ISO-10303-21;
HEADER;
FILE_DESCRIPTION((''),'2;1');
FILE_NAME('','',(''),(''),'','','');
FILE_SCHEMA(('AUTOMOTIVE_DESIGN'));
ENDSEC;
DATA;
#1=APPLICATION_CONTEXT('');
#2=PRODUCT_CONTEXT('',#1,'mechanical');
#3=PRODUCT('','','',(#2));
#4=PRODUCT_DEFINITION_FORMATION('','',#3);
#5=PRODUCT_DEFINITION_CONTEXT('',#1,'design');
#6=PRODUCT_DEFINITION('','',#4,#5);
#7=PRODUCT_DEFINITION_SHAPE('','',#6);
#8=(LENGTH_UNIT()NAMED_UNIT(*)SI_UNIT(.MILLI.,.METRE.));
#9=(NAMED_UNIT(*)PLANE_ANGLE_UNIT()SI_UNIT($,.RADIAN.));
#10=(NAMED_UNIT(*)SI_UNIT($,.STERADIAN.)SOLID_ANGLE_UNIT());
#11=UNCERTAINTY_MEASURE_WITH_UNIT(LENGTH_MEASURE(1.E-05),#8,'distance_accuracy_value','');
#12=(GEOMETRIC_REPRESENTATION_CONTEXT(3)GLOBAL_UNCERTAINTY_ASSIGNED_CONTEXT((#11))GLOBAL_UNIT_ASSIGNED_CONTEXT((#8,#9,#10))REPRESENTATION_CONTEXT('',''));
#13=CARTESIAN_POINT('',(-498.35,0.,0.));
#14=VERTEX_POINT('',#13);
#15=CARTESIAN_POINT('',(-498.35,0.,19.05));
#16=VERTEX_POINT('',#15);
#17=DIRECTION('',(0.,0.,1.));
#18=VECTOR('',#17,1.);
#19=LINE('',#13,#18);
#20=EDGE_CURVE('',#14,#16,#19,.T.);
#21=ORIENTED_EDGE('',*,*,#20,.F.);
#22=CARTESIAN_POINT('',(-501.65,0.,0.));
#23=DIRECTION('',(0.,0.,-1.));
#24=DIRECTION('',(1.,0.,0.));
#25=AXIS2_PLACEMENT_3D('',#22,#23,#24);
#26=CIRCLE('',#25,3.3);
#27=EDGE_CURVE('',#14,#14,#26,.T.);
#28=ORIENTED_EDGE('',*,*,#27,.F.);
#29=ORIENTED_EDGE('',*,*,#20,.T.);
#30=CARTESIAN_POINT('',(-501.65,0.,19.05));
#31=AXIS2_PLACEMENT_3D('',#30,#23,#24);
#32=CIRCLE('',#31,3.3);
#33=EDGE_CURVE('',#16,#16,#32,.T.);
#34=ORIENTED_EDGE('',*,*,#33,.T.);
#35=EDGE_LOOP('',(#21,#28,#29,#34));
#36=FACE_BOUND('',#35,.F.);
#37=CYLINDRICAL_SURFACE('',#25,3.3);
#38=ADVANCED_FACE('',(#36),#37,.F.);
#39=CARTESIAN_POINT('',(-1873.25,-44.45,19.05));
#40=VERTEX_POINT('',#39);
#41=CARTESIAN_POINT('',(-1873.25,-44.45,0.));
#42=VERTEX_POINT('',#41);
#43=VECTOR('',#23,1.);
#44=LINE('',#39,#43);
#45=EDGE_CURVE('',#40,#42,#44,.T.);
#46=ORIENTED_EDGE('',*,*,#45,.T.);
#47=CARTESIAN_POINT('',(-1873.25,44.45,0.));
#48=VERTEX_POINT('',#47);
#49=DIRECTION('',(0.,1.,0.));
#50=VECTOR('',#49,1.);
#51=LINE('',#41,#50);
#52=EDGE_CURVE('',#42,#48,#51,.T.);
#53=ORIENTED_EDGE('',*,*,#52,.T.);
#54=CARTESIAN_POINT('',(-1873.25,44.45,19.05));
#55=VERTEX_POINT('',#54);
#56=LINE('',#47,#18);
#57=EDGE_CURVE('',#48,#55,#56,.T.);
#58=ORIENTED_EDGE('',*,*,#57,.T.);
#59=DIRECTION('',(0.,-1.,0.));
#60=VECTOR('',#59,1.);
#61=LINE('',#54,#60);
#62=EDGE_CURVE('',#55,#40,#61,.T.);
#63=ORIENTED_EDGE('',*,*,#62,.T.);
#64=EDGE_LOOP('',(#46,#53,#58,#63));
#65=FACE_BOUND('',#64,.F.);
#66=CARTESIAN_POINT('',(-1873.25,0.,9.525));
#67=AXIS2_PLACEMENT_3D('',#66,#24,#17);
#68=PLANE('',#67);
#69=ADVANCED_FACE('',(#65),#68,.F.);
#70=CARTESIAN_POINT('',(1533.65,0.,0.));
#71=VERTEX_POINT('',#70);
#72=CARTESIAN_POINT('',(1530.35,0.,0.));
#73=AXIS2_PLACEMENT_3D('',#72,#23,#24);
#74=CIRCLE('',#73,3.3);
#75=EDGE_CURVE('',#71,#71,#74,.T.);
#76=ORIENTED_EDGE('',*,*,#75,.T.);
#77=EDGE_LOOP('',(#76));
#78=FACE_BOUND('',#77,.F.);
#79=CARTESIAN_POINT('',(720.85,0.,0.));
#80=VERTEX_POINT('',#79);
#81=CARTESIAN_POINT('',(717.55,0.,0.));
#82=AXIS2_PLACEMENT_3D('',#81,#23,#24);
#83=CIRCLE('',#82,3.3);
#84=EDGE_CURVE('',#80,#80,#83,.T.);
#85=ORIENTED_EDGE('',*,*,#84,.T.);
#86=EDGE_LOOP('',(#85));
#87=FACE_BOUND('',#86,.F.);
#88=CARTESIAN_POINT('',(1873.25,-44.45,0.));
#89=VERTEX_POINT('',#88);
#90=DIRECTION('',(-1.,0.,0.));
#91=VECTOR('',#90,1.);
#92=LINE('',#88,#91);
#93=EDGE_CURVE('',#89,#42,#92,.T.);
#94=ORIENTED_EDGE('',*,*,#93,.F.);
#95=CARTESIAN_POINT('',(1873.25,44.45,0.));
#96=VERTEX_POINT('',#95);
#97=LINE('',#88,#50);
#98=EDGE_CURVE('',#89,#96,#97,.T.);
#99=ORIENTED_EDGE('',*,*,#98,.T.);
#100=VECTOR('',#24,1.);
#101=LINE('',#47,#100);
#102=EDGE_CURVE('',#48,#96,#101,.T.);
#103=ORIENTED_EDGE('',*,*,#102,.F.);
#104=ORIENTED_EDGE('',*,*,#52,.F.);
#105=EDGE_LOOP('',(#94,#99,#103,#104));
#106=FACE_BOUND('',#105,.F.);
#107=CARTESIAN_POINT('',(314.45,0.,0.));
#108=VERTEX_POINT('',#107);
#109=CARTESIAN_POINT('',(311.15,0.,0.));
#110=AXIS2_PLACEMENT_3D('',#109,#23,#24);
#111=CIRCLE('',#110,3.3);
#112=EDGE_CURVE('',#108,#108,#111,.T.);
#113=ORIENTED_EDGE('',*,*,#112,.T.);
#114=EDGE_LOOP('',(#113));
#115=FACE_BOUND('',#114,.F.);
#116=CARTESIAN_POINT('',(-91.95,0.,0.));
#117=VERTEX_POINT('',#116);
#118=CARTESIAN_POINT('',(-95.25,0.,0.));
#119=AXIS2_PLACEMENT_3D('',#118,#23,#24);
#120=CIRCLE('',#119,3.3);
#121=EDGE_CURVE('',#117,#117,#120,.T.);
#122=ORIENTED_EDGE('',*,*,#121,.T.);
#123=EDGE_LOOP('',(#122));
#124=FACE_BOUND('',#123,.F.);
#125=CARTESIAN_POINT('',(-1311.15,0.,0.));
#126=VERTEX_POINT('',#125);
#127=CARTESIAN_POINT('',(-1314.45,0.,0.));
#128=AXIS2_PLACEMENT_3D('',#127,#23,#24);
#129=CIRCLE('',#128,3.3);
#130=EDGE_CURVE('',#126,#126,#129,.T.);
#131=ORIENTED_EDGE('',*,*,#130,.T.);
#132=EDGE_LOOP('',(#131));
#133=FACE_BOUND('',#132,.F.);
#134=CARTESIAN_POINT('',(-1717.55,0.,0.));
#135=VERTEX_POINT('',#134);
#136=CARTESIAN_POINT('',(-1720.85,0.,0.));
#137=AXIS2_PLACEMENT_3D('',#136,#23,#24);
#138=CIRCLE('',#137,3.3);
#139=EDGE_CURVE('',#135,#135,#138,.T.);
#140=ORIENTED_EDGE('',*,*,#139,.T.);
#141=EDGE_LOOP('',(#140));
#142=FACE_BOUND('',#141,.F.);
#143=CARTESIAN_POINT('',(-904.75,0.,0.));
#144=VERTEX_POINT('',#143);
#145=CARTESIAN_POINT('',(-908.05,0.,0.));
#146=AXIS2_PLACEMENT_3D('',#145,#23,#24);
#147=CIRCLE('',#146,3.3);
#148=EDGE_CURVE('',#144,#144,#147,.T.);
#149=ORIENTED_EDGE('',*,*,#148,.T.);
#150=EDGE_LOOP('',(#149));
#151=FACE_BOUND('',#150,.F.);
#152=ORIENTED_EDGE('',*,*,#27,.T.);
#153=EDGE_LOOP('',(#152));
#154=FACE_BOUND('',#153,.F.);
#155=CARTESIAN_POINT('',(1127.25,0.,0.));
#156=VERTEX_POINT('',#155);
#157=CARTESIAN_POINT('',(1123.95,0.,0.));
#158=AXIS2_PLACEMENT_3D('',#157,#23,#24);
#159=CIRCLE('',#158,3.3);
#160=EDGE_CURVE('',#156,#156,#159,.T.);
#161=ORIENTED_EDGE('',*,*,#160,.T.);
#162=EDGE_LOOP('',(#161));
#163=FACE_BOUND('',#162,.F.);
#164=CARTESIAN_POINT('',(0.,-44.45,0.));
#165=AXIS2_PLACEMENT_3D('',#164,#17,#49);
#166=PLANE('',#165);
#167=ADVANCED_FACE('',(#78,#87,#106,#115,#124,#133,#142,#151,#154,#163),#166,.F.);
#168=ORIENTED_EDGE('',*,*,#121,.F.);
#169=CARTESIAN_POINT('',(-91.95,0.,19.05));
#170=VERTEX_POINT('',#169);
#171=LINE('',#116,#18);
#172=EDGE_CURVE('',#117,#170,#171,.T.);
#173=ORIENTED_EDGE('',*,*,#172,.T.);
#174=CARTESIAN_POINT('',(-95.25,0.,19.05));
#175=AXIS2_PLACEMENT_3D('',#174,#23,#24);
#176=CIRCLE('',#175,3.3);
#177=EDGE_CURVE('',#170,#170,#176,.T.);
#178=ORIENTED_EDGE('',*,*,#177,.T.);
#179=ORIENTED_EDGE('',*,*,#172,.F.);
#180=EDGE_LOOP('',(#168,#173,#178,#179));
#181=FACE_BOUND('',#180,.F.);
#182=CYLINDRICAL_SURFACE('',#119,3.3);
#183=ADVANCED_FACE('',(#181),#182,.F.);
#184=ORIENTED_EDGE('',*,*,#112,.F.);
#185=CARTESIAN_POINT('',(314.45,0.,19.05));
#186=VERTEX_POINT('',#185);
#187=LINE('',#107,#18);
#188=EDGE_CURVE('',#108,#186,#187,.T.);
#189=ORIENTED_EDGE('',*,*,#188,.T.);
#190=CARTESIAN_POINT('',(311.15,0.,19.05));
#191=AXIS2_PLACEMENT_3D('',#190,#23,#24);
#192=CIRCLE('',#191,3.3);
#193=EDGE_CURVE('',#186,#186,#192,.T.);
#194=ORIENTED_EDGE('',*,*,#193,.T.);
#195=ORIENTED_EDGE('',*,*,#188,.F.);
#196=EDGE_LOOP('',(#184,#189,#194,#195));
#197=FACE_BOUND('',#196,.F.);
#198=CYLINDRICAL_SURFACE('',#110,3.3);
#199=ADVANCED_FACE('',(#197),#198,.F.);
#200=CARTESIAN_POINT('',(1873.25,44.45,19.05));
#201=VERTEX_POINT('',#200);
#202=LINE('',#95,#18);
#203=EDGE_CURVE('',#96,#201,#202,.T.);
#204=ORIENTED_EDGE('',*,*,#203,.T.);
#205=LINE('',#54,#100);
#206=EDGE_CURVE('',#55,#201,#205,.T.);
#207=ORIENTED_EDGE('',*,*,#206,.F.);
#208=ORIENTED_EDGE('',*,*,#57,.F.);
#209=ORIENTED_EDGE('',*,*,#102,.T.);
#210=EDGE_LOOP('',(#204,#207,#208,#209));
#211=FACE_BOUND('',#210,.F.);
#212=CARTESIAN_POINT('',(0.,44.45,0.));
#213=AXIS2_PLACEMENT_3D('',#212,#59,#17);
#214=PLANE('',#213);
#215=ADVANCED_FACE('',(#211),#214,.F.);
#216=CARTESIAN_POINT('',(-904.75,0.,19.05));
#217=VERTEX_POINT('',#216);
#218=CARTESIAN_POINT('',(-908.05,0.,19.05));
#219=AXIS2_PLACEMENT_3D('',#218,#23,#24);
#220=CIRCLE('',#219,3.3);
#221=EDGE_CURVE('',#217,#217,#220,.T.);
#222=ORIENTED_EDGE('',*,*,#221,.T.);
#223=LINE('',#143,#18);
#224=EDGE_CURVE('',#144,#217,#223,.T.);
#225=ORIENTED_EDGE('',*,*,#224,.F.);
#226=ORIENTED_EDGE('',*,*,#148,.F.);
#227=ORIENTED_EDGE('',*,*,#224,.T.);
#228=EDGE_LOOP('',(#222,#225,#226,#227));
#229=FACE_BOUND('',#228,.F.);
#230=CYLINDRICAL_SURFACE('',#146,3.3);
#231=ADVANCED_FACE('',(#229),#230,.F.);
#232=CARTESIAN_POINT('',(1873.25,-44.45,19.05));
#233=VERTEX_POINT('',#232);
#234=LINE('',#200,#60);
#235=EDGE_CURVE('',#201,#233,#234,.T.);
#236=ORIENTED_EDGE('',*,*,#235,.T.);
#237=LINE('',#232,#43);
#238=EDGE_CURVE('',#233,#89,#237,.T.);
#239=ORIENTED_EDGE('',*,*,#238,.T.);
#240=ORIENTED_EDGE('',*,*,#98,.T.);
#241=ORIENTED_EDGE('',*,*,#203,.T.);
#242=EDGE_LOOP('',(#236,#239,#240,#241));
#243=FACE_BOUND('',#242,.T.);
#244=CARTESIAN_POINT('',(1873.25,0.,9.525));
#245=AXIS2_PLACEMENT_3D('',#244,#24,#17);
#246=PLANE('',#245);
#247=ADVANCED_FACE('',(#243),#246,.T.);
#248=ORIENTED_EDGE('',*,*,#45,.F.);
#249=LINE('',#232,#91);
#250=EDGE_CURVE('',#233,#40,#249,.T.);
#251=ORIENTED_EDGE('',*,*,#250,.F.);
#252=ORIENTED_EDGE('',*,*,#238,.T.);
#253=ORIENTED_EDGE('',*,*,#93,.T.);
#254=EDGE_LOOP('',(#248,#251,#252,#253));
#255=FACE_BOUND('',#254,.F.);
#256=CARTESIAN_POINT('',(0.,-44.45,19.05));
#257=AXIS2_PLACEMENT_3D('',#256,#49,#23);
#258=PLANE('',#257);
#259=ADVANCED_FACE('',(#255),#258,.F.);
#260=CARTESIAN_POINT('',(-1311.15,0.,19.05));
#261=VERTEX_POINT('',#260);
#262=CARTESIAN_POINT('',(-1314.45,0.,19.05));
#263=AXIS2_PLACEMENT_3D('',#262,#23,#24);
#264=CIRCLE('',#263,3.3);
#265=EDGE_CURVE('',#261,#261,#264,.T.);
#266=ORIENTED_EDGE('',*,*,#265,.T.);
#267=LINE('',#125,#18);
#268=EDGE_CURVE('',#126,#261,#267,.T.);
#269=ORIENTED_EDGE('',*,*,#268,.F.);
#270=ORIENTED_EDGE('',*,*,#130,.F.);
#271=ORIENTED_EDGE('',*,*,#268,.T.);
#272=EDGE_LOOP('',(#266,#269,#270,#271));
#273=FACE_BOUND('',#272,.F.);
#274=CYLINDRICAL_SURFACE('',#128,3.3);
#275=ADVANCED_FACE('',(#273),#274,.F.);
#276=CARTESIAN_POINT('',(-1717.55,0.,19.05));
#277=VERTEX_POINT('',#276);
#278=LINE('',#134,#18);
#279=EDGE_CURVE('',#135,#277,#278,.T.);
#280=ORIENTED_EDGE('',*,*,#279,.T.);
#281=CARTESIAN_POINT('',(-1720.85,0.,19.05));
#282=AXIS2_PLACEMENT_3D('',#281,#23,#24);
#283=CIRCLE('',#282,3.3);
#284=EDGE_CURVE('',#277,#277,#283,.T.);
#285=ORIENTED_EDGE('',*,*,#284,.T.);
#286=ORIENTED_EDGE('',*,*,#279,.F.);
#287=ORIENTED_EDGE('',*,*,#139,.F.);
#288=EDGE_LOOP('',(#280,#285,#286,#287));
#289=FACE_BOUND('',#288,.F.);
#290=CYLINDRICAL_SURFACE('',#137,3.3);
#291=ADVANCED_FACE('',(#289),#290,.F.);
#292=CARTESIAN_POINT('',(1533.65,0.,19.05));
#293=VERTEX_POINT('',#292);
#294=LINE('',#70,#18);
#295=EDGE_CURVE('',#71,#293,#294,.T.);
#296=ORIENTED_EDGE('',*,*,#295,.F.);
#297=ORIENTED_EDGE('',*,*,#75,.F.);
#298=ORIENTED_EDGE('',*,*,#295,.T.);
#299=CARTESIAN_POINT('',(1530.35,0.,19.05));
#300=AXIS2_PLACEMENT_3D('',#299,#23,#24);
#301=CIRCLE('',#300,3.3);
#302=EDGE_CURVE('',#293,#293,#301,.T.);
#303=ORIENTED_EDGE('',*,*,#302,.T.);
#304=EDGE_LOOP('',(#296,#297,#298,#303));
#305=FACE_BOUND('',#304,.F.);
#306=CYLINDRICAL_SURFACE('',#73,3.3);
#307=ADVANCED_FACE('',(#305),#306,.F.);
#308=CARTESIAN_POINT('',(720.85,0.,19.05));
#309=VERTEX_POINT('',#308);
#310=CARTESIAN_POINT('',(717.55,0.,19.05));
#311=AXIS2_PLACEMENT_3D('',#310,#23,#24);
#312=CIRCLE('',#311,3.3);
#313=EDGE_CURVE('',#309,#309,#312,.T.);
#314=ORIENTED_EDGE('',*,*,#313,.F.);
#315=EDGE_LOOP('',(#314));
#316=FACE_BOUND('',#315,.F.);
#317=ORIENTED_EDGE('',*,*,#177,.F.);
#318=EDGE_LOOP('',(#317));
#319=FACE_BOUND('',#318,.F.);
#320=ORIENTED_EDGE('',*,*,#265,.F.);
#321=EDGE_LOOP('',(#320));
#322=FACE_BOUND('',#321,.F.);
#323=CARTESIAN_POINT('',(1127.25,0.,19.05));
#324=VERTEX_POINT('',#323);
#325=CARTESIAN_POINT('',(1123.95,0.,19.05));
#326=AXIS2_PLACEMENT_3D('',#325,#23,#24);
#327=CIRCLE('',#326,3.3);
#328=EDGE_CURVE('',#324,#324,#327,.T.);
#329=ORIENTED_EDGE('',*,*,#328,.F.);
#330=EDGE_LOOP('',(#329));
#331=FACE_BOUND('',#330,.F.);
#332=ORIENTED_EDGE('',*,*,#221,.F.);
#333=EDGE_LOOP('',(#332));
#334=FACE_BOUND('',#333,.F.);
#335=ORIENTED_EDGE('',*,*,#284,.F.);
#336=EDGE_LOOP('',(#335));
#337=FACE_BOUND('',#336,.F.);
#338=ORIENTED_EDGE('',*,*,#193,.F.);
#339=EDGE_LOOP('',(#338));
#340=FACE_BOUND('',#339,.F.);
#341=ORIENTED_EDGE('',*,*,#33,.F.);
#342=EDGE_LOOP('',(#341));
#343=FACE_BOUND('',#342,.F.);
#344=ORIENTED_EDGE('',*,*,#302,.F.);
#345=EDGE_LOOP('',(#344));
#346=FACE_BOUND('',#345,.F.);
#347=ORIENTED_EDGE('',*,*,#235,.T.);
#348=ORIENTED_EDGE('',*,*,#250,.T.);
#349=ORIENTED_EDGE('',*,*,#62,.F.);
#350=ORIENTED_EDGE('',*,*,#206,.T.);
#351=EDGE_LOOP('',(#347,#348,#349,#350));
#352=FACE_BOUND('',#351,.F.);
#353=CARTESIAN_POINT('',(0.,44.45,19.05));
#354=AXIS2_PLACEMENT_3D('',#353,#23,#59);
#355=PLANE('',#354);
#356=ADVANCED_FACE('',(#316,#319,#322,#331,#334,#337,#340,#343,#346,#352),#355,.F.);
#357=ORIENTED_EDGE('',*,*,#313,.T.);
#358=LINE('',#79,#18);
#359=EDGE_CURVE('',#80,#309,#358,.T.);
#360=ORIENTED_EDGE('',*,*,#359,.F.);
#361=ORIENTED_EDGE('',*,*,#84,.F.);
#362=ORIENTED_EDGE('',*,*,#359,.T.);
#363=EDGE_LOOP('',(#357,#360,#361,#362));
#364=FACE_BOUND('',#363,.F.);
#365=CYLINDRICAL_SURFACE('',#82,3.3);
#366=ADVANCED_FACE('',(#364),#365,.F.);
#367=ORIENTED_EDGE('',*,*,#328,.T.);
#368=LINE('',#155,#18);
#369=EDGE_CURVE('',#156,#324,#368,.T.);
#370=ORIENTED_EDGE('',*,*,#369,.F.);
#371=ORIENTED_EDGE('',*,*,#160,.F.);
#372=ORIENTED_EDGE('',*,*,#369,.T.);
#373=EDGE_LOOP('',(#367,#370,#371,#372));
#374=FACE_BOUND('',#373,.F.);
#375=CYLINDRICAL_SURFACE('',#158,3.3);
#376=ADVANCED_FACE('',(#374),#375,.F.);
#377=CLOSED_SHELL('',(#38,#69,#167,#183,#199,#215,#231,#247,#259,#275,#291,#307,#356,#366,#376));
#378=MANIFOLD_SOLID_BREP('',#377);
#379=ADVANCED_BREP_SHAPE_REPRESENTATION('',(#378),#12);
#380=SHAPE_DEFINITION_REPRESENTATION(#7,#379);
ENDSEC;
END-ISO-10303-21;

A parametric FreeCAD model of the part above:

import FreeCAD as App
import Part
import Sketcher
from FreeCAD import Vector
Q = App.Units.Quantity


def add_polygon(sketch, points):
    """Adds a closed chain of lines whose ends are joined by coincident constraints."""
    first, n = sketch.GeometryCount, len(points)
    for a, b in zip(points, points[1:] + points[:1]):
        sketch.addGeometry(Part.LineSegment(App.Vector(*a, 0), App.Vector(*b, 0)), False)
    for i in range(n):
        sketch.addConstraint(Sketcher.Constraint("Coincident", first + i, 2, first + (i + 1) % n, 1))

doc = App.newDocument("Part")
body = doc.addObject("PartDesign::Body", "Body")

sketch1 = body.newObject("Sketcher::SketchObject", "Sketch")
sketch1.AttachmentSupport = (doc.getObject("YZ_Plane"), [""])
sketch1.MapMode = "FlatFace"
add_polygon(sketch1, [(-44.45, 19.05), (-44.45, 0), (44.45, 0), (44.45, 19.05)])
sketch1.addConstraint(Sketcher.Constraint("Vertical", 0))
sketch1.addConstraint(Sketcher.Constraint("Horizontal", 1))
sketch1.addConstraint(Sketcher.Constraint("Vertical", 2))
sketch1.addConstraint(Sketcher.Constraint("Horizontal", 3))
sketch1.addConstraint(Sketcher.Constraint("Symmetric", 0, 2, 1, 2, -1, 1))
sketch1.addConstraint(Sketcher.Constraint("DistanceX", 1, 1, 1, 2, Q("3.5 in")))
sketch1.addConstraint(Sketcher.Constraint("DistanceY", 0, 2, 0, 1, Q("0.75 in")))
pad1 = body.newObject("PartDesign::Pad", "Pad")
pad1.Profile = sketch1
pad1.Length = Q("147.5 in")
pad1.Midplane = True

sketch2 = body.newObject("Sketcher::SketchObject", "Sketch001")
sketch2.AttachmentSupport = (doc.getObject("XY_Plane"), [""])
sketch2.MapMode = "FlatFace"
sketch2.addGeometry(Part.Circle(Vector(-1720.85, 0, 0), Vector(0, 0, 1), 3.3), False)
sketch2.addConstraint(Sketcher.Constraint("PointOnObject", 0, 3, -1))
sketch2.addConstraint(Sketcher.Constraint("Diameter", 0, 6.6))
sketch2.addConstraint(Sketcher.Constraint("DistanceX", 0, 3, -1, 1, Q("67.75 in")))
pocket1 = body.newObject("PartDesign::Pocket", "Pocket")
pocket1.Profile = sketch2
pocket1.Type = "ThroughAll"
pocket1.Reversed = True
doc.recompute()

linearpattern = body.newObject("PartDesign::LinearPattern", "LinearPattern")
linearpattern.Originals = [pocket1]
linearpattern.Direction = (doc.getObject("X_Axis"), [""])
linearpattern.Mode = "offset"
linearpattern.Offset = Q("16 in")
linearpattern.Occurrences = 9
body.Tip = linearpattern

doc.recompute()
